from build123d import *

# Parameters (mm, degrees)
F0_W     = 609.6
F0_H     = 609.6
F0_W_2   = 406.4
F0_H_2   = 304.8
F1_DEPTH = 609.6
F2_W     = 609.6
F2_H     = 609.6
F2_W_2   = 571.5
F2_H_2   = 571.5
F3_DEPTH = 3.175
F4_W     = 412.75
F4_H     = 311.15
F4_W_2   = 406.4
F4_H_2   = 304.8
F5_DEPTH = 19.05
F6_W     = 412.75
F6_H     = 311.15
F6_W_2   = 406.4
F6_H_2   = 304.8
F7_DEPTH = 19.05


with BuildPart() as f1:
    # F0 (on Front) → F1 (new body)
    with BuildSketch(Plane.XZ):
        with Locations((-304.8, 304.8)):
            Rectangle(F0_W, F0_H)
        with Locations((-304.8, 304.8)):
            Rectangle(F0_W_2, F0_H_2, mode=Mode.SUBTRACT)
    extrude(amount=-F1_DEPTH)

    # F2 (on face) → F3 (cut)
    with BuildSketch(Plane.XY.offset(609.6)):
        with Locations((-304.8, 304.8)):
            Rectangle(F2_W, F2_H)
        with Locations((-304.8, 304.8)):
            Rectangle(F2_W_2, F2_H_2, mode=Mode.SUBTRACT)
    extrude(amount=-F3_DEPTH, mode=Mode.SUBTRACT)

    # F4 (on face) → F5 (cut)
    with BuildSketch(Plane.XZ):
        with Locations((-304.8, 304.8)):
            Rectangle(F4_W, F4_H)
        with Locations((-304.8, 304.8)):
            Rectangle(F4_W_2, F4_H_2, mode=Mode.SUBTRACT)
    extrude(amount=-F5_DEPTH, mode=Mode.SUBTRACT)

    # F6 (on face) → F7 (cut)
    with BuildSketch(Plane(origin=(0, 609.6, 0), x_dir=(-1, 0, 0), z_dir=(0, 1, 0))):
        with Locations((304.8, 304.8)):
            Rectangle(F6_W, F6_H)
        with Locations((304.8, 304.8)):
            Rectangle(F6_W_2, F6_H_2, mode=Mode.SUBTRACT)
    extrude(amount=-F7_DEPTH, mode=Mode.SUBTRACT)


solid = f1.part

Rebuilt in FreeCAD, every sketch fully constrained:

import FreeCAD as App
import Part
import Sketcher
from FreeCAD import Vector
Q = App.Units.Quantity


def add_polygon(sketch, points):
    """Adds a closed chain of lines whose ends are joined by coincident constraints."""
    first, n = sketch.GeometryCount, len(points)
    for a, b in zip(points, points[1:] + points[:1]):
        sketch.addGeometry(Part.LineSegment(App.Vector(*a, 0), App.Vector(*b, 0)), False)
    for i in range(n):
        sketch.addConstraint(Sketcher.Constraint("Coincident", first + i, 2, first + (i + 1) % n, 1))

doc = App.newDocument("Part")
body = doc.addObject("PartDesign::Body", "Body")

sketch1 = body.newObject("Sketcher::SketchObject", "Sketch")
sketch1.AttachmentSupport = (doc.getObject("XZ_Plane"), [""])
sketch1.MapMode = "FlatFace"
add_polygon(sketch1, [(-609.6, 609.6), (-609.6, 0), (0, 0), (0, 609.6)])
add_polygon(sketch1, [(-101.6, 152.4), (-508, 152.4), (-508, 457.2), (-101.6, 457.2)])
sketch1.addConstraint(Sketcher.Constraint("Vertical", 0))
sketch1.addConstraint(Sketcher.Constraint("Horizontal", 1))
sketch1.addConstraint(Sketcher.Constraint("Vertical", 2))
sketch1.addConstraint(Sketcher.Constraint("Horizontal", 3))
sketch1.addConstraint(Sketcher.Constraint("Horizontal", 4))
sketch1.addConstraint(Sketcher.Constraint("Vertical", 5))
sketch1.addConstraint(Sketcher.Constraint("Horizontal", 6))
sketch1.addConstraint(Sketcher.Constraint("Vertical", 7))
sketch1.addConstraint(Sketcher.Constraint("Coincident", 1, 2, -1, 1))
sketch1.addConstraint(Sketcher.Constraint("Equal", 3, 0))
sketch1.addConstraint(Sketcher.Constraint("DistanceX", 1, 1, 1, 2, Q("24 in")))
sketch1.addConstraint(Sketcher.Constraint("DistanceX", 4, 2, 4, 1, Q("16 in")))
sketch1.addConstraint(Sketcher.Constraint("DistanceY", 5, 1, 5, 2, Q("12 in")))
sketch1.addConstraint(Sketcher.Constraint("DistanceX", 4, 2, -1, 1, Q("20 in")))
sketch1.addConstraint(Sketcher.Constraint("DistanceY", -1, 1, 4, 2, Q("6 in")))
pad1 = body.newObject("PartDesign::Pad", "Pad")
pad1.Profile = sketch1
pad1.Length = Q("24 in")
pad1.Reversed = True

sketch2 = body.newObject("Sketcher::SketchObject", "Sketch001")
sketch2.AttachmentSupport = (doc.getObject("XY_Plane"), [""])
sketch2.MapMode = "FlatFace"
sketch2.AttachmentOffset = App.Placement(Vector(0, 0, 24 * 25.4), App.Rotation())
add_polygon(sketch2, [(-609.6, 609.6), (-609.6, 0), (0, 0), (0, 609.6)])
add_polygon(sketch2, [(-19.05, 19.05), (-590.55, 19.05), (-590.55, 590.55), (-19.05, 590.55)])
sketch2.addConstraint(Sketcher.Constraint("Vertical", 0))
sketch2.addConstraint(Sketcher.Constraint("Horizontal", 1))
sketch2.addConstraint(Sketcher.Constraint("Vertical", 2))
sketch2.addConstraint(Sketcher.Constraint("Horizontal", 3))
sketch2.addConstraint(Sketcher.Constraint("Horizontal", 4))
sketch2.addConstraint(Sketcher.Constraint("Vertical", 5))
sketch2.addConstraint(Sketcher.Constraint("Horizontal", 6))
sketch2.addConstraint(Sketcher.Constraint("Vertical", 7))
sketch2.addConstraint(Sketcher.Constraint("Coincident", 1, 2, -1, 1))
sketch2.addConstraint(Sketcher.Constraint("Equal", 3, 0))
sketch2.addConstraint(Sketcher.Constraint("Equal", 6, 5))
sketch2.addConstraint(Sketcher.Constraint("DistanceX", 1, 1, 1, 2, Q("24 in")))
sketch2.addConstraint(Sketcher.Constraint("DistanceX", 4, 2, 4, 1, Q("22.5 in")))
sketch2.addConstraint(Sketcher.Constraint("DistanceX", 4, 2, -1, 1, Q("23.25 in")))
sketch2.addConstraint(Sketcher.Constraint("DistanceY", -1, 1, 4, 2, Q("0.75 in")))
pocket1 = body.newObject("PartDesign::Pocket", "Pocket")
pocket1.Profile = sketch2
pocket1.Length = Q("0.125 in")

sketch3 = body.newObject("Sketcher::SketchObject", "Sketch002")
sketch3.AttachmentSupport = (doc.getObject("XZ_Plane"), [""])
sketch3.MapMode = "FlatFace"
add_polygon(sketch3, [(-511.175, 460.375), (-511.175, 149.225), (-98.425, 149.225), (-98.425, 460.375)])
add_polygon(sketch3, [(-101.6, 152.4), (-508, 152.4), (-508, 457.2), (-101.6, 457.2)])
sketch3.addConstraint(Sketcher.Constraint("Vertical", 0))
sketch3.addConstraint(Sketcher.Constraint("Horizontal", 1))
sketch3.addConstraint(Sketcher.Constraint("Vertical", 2))
sketch3.addConstraint(Sketcher.Constraint("Horizontal", 3))
sketch3.addConstraint(Sketcher.Constraint("Horizontal", 4))
sketch3.addConstraint(Sketcher.Constraint("Vertical", 5))
sketch3.addConstraint(Sketcher.Constraint("Horizontal", 6))
sketch3.addConstraint(Sketcher.Constraint("Vertical", 7))
sketch3.addConstraint(Sketcher.Constraint("DistanceX", 4, 2, 4, 1, Q("16 in")))
sketch3.addConstraint(Sketcher.Constraint("DistanceY", 5, 1, 5, 2, Q("12 in")))
sketch3.addConstraint(Sketcher.Constraint("DistanceX", 4, 2, -1, 1, Q("20 in")))
sketch3.addConstraint(Sketcher.Constraint("DistanceY", -1, 1, 4, 2, Q("6 in")))
sketch3.addConstraint(Sketcher.Constraint("DistanceX", 1, 1, 1, 2, Q("16.25 in")))
sketch3.addConstraint(Sketcher.Constraint("DistanceY", 0, 2, 0, 1, Q("12.25 in")))
sketch3.addConstraint(Sketcher.Constraint("DistanceX", 0, 2, -1, 1, Q("20.125 in")))
sketch3.addConstraint(Sketcher.Constraint("DistanceY", -1, 1, 0, 2, Q("5.875 in")))
pocket2 = body.newObject("PartDesign::Pocket", "Pocket001")
pocket2.Profile = sketch3
pocket2.Length = Q("0.75 in")

sketch4 = body.newObject("Sketcher::SketchObject", "Sketch003")
sketch4.AttachmentSupport = (doc.getObject("XZ_Plane"), [""])
sketch4.MapMode = "FlatFace"
sketch4.AttachmentOffset = App.Placement(Vector(0, 0, -24 * 25.4), App.Rotation())
add_polygon(sketch4, [(-98.425, 460.375), (-98.425, 149.225), (-511.175, 149.225), (-511.175, 460.375)])
add_polygon(sketch4, [(-508, 152.4), (-101.6, 152.4), (-101.6, 457.2), (-508, 457.2)])
sketch4.addConstraint(Sketcher.Constraint("Vertical", 0))
sketch4.addConstraint(Sketcher.Constraint("Horizontal", 1))
sketch4.addConstraint(Sketcher.Constraint("Vertical", 2))
sketch4.addConstraint(Sketcher.Constraint("Horizontal", 3))
sketch4.addConstraint(Sketcher.Constraint("Horizontal", 4))
sketch4.addConstraint(Sketcher.Constraint("Vertical", 5))
sketch4.addConstraint(Sketcher.Constraint("Horizontal", 6))
sketch4.addConstraint(Sketcher.Constraint("Vertical", 7))
sketch4.addConstraint(Sketcher.Constraint("DistanceX", 4, 1, 4, 2, Q("16 in")))
sketch4.addConstraint(Sketcher.Constraint("DistanceY", 5, 1, 5, 2, Q("12 in")))
sketch4.addConstraint(Sketcher.Constraint("DistanceX", 4, 2, -1, 1, Q("4 in")))
sketch4.addConstraint(Sketcher.Constraint("DistanceY", -1, 1, 4, 2, Q("6 in")))
sketch4.addConstraint(Sketcher.Constraint("DistanceX", 1, 2, 1, 1, Q("16.25 in")))
sketch4.addConstraint(Sketcher.Constraint("DistanceY", 0, 2, 0, 1, Q("12.25 in")))
sketch4.addConstraint(Sketcher.Constraint("DistanceX", 0, 2, -1, 1, Q("3.875 in")))
sketch4.addConstraint(Sketcher.Constraint("DistanceY", -1, 1, 0, 2, Q("5.875 in")))
pocket3 = body.newObject("PartDesign::Pocket", "Pocket002")
pocket3.Profile = sketch4
pocket3.Length = Q("0.75 in")
pocket3.Reversed = True

doc.recompute()
